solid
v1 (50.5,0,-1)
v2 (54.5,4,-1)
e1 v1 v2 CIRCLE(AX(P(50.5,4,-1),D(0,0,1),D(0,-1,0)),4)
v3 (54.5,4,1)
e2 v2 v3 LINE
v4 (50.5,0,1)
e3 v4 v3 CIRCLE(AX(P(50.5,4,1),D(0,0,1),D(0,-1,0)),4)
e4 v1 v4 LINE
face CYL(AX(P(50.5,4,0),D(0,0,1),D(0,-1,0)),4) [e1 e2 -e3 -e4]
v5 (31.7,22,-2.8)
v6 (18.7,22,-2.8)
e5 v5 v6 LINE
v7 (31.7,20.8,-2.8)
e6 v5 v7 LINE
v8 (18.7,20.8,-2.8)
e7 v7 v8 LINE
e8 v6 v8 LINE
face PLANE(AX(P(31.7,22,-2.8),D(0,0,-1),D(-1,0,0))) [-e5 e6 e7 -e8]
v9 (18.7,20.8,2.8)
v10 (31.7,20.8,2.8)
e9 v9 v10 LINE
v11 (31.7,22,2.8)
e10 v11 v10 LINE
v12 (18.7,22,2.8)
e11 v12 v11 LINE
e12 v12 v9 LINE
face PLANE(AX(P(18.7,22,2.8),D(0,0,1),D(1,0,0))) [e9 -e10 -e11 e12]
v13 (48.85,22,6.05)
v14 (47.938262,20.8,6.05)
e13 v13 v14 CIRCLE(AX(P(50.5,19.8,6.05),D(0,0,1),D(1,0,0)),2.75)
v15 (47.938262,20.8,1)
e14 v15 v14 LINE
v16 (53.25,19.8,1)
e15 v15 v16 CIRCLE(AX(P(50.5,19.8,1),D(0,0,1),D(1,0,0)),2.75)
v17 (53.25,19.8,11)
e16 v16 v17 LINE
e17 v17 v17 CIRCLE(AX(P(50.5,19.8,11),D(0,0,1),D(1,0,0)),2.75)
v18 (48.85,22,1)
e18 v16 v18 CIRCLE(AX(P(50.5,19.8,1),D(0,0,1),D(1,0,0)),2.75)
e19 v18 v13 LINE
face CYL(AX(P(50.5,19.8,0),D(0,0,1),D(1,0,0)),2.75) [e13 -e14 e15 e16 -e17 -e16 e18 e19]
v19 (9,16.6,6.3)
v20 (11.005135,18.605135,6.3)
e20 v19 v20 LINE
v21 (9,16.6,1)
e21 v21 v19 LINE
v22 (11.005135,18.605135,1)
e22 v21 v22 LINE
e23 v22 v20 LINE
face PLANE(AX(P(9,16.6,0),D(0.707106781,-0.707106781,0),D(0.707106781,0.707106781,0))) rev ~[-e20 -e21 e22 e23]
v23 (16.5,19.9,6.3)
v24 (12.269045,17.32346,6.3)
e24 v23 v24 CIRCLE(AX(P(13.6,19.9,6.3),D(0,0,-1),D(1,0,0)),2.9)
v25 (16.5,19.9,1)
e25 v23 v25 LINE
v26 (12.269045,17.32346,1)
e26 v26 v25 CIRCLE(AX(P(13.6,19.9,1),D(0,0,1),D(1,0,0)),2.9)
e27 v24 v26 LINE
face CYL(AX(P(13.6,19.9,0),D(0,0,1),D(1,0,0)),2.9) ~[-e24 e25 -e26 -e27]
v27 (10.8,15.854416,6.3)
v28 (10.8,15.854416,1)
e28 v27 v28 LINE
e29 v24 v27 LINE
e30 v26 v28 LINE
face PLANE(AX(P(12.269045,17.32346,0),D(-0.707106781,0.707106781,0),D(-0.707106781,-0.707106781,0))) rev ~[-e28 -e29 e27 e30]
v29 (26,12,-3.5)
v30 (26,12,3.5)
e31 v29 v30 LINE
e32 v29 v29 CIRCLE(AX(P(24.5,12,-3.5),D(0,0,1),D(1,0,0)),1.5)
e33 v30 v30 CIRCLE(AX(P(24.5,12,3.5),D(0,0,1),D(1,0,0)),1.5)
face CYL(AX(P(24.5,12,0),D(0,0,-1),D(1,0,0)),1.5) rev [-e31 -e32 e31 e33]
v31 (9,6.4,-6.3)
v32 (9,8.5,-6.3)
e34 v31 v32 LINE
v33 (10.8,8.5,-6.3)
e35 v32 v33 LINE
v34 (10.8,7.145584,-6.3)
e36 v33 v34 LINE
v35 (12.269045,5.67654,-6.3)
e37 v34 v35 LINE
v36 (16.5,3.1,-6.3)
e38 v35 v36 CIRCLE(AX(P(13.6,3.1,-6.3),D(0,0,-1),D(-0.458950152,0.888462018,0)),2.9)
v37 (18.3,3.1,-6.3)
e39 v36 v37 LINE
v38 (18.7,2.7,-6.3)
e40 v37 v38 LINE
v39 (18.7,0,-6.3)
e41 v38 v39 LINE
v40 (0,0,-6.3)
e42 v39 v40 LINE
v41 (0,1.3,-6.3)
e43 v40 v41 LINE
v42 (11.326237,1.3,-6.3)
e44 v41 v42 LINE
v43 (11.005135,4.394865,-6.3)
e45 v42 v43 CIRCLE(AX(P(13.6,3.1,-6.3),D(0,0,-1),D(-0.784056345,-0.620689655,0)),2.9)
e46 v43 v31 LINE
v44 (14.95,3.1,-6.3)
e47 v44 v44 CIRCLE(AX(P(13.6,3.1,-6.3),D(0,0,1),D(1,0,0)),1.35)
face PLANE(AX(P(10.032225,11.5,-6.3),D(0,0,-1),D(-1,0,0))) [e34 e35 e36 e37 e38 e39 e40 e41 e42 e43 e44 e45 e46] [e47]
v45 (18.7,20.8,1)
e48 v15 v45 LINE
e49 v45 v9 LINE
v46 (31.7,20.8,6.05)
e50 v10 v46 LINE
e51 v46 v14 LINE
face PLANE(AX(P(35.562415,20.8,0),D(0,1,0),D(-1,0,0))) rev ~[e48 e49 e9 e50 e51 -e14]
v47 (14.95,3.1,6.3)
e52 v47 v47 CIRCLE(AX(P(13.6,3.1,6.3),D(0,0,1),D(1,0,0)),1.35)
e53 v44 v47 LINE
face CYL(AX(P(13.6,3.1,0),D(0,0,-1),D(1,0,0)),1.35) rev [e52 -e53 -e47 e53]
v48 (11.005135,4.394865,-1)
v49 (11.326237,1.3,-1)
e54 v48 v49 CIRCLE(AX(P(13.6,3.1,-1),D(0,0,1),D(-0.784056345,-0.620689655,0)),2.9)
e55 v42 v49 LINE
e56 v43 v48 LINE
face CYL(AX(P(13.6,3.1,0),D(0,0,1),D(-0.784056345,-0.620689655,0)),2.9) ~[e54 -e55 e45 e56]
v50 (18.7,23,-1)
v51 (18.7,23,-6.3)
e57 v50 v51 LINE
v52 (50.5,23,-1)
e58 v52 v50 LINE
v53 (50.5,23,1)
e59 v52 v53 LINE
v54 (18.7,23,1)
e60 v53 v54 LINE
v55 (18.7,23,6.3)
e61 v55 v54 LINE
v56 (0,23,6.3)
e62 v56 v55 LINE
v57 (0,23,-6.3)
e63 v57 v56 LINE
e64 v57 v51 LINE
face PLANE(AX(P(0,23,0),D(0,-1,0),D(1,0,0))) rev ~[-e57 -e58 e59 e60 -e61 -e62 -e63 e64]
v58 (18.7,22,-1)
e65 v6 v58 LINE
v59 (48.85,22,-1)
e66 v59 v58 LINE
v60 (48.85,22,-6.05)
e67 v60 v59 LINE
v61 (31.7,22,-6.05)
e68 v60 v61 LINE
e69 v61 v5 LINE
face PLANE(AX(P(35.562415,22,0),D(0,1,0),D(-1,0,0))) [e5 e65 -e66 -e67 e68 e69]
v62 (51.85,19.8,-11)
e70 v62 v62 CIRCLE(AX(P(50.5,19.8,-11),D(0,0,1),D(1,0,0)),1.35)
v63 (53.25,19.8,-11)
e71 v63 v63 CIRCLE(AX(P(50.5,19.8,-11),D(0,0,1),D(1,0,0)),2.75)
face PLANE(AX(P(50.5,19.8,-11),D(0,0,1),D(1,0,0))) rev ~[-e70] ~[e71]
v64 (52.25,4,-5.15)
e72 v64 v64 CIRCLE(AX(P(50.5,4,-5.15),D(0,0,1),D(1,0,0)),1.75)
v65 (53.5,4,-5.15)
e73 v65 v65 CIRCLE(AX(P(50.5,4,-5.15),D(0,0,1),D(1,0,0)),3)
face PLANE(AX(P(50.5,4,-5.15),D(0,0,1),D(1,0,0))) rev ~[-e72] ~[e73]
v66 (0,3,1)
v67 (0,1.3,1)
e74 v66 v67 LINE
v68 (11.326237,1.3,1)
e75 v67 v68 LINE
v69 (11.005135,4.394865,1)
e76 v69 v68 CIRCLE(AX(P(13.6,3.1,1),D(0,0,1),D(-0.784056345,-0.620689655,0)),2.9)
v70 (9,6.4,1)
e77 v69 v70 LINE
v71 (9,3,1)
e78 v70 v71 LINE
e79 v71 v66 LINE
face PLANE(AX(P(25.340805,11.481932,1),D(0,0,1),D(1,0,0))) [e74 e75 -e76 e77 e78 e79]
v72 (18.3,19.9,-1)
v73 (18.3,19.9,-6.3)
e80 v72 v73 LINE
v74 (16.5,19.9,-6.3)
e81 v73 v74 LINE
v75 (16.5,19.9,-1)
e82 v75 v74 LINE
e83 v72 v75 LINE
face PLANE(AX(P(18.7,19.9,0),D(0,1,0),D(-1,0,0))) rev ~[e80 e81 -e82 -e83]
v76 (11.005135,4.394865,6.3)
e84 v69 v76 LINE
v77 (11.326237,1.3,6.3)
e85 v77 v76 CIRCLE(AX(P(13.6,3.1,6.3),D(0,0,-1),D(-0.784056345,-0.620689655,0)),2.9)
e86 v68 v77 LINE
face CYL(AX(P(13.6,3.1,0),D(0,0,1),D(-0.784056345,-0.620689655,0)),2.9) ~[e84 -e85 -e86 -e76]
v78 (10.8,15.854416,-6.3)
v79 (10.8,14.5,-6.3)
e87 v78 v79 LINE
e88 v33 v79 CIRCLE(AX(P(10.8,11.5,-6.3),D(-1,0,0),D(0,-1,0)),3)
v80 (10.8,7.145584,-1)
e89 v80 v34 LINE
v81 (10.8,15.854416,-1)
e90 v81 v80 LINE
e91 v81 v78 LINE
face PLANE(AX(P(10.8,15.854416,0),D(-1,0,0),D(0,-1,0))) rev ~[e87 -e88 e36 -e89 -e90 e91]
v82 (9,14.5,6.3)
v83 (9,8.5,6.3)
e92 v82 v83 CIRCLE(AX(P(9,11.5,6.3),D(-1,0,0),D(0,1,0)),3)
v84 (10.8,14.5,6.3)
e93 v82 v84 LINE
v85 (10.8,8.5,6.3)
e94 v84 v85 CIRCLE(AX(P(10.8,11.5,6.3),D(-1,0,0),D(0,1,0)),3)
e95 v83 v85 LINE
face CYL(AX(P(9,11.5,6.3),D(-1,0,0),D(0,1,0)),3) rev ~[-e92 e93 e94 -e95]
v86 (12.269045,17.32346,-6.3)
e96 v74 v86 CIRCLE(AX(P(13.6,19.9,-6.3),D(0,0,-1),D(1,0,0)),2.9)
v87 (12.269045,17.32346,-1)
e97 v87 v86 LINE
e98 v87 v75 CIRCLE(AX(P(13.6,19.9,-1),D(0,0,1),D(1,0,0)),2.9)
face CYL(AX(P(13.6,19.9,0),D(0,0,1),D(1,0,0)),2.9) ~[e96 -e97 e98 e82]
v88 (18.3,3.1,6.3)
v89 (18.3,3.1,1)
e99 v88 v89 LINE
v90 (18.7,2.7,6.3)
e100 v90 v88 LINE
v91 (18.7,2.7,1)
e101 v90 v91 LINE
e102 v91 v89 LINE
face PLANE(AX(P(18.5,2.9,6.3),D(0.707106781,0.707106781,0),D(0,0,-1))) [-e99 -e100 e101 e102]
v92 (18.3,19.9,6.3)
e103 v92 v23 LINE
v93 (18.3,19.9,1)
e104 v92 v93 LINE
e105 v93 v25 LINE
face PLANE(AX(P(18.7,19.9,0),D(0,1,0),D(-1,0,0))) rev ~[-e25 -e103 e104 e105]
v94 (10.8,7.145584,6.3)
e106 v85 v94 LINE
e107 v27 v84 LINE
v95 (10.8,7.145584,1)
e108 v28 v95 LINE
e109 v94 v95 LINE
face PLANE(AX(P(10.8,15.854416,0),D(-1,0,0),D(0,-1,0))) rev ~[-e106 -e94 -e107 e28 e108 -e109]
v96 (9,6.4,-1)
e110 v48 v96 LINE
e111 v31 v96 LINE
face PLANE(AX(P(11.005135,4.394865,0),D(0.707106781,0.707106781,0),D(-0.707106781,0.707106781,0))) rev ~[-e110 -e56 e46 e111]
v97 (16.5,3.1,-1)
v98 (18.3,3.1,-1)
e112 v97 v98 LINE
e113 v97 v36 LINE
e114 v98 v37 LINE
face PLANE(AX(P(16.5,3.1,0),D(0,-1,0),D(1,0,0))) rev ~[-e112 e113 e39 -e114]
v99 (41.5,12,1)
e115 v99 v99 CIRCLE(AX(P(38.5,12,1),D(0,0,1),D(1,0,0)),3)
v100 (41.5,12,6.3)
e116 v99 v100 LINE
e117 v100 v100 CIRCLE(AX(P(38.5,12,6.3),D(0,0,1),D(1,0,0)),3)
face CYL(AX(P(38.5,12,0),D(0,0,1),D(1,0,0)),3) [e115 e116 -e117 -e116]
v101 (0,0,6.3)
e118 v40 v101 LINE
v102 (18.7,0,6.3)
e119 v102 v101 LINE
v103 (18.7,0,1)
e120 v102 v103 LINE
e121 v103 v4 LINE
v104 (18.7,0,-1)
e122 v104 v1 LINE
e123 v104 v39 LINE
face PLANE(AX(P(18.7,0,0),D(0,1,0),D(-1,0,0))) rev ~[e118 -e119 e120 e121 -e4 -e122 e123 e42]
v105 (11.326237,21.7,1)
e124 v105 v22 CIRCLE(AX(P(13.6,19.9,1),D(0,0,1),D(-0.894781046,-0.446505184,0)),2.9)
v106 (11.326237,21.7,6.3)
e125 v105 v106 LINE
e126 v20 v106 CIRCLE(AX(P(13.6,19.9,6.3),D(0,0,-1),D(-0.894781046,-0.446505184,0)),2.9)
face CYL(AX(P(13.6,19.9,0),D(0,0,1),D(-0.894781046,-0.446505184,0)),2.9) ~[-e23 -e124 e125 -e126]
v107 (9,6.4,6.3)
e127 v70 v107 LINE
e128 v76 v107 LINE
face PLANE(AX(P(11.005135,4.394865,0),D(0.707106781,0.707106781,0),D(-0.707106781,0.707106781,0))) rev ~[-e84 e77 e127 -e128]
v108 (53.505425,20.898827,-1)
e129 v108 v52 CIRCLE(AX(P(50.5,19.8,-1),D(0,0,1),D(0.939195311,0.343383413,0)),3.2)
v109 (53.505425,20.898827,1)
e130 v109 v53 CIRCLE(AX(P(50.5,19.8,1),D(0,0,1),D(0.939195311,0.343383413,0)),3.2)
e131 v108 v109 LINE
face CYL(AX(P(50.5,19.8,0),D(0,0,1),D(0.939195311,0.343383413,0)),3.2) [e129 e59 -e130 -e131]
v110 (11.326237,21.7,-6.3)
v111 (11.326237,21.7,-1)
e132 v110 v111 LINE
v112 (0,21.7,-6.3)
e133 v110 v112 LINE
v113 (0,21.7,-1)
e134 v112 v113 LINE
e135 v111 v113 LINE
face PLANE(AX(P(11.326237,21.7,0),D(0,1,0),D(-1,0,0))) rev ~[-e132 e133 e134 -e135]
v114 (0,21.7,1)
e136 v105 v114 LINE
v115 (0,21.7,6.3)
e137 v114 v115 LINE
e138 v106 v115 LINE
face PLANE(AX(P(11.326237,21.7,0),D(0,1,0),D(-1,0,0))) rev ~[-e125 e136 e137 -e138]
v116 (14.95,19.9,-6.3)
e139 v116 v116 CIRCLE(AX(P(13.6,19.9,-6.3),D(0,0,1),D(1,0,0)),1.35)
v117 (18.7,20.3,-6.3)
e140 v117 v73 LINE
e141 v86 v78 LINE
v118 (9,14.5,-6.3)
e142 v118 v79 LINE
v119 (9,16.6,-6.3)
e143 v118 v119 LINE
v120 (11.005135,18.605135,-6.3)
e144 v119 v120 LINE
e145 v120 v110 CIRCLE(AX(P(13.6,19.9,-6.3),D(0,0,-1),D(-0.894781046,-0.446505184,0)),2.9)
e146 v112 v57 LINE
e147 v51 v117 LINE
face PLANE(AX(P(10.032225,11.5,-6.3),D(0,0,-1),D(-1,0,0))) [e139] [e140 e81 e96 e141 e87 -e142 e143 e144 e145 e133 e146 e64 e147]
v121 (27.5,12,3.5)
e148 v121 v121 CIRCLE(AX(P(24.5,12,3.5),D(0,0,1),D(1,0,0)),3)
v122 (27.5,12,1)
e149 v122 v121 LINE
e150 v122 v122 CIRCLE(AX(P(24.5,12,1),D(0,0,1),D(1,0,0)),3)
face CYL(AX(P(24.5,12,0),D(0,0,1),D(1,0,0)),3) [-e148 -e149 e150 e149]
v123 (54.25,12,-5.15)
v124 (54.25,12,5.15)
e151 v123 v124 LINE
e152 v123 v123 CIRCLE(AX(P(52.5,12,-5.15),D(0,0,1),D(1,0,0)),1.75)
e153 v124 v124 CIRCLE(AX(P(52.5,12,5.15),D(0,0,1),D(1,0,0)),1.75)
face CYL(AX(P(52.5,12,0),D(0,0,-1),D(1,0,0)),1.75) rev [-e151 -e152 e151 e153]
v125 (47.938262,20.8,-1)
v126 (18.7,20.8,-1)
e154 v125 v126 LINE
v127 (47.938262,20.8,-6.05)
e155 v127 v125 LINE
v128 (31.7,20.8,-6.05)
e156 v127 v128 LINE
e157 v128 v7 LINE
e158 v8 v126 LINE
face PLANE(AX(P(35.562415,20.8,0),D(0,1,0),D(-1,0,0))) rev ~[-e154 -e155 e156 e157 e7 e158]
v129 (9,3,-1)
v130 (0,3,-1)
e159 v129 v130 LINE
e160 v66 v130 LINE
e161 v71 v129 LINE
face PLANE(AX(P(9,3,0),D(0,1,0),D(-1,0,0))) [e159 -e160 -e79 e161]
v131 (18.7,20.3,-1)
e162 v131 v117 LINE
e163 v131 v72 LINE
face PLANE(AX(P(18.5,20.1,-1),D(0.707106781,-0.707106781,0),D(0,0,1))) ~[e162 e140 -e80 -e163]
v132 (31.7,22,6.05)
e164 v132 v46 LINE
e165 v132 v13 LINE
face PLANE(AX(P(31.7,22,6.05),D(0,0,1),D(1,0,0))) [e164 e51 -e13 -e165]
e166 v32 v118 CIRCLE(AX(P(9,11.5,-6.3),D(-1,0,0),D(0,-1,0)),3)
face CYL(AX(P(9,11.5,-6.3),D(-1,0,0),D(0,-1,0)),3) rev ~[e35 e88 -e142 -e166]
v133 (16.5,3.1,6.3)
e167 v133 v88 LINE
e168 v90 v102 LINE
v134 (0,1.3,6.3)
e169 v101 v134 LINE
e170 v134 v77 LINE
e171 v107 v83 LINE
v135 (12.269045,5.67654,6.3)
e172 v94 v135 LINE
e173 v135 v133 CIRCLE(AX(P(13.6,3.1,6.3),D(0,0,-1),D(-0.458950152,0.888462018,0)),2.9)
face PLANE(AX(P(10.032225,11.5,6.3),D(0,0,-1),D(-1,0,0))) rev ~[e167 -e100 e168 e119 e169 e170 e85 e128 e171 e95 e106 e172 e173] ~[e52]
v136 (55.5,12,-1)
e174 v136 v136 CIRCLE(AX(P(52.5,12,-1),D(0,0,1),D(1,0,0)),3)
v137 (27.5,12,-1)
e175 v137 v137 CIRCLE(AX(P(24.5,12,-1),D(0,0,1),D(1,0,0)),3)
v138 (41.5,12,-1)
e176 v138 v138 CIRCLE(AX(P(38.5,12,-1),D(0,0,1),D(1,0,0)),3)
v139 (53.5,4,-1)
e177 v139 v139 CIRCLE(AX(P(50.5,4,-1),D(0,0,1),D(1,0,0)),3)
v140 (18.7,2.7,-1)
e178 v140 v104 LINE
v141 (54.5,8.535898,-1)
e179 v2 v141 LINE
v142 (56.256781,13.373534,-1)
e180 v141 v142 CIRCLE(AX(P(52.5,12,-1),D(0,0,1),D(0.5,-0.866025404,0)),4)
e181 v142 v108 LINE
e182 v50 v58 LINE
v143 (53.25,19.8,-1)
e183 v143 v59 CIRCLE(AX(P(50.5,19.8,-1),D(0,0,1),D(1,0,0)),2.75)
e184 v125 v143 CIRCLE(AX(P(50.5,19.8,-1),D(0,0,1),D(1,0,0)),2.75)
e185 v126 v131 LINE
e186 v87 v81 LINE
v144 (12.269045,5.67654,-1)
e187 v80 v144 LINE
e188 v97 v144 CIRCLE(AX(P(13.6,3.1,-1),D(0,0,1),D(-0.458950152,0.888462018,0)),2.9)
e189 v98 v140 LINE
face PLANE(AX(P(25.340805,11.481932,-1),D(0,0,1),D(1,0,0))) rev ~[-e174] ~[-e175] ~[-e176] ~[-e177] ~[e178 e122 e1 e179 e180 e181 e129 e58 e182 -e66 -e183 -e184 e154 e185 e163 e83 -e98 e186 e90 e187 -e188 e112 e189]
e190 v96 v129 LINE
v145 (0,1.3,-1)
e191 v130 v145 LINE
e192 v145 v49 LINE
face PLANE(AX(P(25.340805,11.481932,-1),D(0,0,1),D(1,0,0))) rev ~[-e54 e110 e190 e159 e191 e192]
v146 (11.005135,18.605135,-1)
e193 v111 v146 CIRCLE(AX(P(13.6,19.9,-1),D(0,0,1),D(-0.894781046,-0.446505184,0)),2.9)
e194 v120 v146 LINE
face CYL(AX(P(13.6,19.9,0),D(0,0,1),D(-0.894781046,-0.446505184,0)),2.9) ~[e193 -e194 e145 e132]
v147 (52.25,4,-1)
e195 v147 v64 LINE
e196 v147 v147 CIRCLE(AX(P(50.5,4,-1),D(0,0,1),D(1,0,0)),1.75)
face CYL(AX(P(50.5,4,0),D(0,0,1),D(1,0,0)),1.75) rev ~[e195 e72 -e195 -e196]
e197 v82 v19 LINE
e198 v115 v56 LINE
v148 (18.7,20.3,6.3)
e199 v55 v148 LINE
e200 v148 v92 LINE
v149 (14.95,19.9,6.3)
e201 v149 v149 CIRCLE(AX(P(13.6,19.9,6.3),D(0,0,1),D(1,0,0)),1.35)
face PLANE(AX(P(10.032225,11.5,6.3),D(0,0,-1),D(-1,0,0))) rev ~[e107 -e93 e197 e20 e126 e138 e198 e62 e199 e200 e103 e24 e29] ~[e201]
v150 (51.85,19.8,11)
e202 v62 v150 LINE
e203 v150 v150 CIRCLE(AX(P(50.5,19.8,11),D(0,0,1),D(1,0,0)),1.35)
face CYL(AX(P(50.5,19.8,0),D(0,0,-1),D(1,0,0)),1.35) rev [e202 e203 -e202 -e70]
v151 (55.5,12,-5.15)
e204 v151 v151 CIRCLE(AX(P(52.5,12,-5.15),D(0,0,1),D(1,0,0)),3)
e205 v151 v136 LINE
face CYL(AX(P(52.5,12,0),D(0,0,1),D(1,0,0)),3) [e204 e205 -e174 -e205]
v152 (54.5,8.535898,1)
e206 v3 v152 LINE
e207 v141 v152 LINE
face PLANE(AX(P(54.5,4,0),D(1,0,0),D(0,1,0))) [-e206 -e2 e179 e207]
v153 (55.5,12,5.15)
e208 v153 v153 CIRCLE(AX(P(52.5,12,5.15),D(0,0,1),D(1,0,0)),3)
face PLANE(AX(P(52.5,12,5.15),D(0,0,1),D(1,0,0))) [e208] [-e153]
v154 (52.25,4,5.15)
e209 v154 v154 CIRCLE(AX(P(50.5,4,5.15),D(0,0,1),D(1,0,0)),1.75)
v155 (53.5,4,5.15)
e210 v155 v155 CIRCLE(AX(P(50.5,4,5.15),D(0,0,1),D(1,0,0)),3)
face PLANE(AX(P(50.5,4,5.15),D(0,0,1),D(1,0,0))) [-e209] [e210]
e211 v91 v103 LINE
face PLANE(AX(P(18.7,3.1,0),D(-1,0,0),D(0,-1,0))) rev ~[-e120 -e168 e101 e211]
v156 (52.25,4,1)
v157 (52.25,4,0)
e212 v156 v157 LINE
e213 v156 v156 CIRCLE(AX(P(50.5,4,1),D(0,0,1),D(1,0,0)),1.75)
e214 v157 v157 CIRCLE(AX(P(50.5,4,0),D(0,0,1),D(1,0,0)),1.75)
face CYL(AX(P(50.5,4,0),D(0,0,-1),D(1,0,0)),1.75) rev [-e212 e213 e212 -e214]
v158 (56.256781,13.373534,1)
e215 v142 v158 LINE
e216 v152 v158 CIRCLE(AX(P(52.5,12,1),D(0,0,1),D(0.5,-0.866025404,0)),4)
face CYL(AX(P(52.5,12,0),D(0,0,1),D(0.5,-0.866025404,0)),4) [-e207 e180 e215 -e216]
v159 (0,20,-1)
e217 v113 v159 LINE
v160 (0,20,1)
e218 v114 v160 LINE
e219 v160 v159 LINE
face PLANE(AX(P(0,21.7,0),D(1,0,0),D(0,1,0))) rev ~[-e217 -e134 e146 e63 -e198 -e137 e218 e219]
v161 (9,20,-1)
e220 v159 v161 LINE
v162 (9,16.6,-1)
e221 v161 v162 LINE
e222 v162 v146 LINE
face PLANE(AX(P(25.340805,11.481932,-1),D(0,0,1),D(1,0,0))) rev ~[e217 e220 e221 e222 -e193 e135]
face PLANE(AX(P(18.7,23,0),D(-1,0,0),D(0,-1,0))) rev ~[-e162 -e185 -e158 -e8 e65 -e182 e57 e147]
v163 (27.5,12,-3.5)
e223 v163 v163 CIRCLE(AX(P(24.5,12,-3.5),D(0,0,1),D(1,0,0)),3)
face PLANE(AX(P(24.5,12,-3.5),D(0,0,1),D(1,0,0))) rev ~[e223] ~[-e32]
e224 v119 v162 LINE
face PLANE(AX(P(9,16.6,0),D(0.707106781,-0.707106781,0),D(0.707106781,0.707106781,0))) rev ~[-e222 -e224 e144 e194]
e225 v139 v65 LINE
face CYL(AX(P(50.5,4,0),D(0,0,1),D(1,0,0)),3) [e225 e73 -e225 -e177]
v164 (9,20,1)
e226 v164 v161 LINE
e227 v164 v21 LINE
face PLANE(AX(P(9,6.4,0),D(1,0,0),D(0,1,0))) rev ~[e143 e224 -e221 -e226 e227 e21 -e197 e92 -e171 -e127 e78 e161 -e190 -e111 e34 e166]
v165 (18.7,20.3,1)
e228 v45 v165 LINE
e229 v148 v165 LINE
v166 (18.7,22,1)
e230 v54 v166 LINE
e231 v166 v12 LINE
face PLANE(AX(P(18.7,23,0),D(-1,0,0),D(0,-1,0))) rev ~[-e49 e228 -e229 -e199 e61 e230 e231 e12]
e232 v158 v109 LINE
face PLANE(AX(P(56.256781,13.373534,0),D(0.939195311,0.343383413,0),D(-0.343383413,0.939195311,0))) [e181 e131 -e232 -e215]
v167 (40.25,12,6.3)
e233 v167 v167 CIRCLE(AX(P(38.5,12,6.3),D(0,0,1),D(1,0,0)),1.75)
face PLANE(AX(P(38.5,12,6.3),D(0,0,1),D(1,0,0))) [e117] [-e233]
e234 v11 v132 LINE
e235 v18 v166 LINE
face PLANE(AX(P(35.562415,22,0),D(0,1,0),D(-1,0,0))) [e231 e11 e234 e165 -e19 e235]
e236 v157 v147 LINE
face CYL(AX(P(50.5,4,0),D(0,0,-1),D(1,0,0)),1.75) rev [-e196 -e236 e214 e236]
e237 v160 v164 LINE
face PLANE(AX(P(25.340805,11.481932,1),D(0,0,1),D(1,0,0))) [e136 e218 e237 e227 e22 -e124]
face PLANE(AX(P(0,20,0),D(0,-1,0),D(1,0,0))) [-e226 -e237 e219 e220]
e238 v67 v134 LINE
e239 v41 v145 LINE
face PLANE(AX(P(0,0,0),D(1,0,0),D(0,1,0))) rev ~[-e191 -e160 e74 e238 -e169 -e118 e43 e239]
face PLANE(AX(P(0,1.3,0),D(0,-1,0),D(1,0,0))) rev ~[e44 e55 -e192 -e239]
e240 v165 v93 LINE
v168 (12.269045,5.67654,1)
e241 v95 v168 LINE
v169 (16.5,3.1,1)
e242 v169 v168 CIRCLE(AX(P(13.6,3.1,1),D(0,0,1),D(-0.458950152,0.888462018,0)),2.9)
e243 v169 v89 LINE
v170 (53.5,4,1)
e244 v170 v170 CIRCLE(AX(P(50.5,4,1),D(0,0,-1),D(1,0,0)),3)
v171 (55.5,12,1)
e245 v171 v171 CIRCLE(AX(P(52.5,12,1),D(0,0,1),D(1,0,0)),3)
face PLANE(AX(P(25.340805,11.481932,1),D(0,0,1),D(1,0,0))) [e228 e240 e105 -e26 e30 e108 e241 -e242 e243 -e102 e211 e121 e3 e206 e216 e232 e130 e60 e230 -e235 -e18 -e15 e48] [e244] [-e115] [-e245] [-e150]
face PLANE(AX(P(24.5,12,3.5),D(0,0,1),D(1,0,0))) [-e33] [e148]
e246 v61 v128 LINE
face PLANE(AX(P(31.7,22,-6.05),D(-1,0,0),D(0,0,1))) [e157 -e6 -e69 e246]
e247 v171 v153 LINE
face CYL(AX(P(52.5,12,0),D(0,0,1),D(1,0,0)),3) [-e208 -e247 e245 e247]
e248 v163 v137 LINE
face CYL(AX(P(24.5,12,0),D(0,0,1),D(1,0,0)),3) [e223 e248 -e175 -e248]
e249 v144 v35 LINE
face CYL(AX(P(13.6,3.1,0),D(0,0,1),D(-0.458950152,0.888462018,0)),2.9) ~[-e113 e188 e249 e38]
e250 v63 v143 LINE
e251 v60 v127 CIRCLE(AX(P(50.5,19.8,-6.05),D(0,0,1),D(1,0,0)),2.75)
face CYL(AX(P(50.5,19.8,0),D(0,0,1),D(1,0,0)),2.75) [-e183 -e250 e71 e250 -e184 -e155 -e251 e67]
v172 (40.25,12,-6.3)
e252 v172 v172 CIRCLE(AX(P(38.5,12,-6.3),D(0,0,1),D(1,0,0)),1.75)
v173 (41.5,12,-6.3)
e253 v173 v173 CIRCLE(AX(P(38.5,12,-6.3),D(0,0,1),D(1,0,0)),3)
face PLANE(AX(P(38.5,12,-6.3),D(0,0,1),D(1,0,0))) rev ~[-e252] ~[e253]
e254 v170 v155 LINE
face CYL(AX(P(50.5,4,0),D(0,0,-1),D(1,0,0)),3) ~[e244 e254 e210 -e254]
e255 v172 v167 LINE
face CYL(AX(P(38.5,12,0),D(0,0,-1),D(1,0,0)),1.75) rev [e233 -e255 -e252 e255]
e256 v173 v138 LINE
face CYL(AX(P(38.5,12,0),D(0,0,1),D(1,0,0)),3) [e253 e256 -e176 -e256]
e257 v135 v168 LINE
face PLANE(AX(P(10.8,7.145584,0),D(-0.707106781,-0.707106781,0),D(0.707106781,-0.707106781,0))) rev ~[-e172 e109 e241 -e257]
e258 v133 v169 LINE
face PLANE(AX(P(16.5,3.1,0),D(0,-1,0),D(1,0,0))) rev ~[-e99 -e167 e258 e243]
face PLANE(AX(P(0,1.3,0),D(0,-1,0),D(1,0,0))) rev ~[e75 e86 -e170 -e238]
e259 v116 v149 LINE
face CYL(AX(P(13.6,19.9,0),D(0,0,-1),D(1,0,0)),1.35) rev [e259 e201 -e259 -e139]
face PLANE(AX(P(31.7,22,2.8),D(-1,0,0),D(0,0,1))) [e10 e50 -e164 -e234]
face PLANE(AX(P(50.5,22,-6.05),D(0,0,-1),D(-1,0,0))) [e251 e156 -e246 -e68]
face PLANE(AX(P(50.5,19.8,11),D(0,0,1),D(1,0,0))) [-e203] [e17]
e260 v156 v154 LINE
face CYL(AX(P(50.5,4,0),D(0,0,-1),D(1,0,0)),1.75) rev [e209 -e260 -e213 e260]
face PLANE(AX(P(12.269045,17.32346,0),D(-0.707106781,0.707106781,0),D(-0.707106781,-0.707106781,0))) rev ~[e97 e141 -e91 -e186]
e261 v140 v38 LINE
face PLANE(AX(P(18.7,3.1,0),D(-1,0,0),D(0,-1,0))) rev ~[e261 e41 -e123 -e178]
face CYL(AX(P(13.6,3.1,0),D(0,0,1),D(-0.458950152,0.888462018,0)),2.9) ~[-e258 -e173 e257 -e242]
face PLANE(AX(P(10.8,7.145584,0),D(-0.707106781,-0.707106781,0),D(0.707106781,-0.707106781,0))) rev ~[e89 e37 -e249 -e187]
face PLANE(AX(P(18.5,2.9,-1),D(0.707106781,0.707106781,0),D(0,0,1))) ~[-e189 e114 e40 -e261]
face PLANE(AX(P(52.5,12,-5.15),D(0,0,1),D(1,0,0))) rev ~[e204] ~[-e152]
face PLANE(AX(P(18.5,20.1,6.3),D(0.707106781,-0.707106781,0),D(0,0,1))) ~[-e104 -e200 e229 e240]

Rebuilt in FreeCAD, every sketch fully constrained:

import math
import FreeCAD as App
import Part
import Sketcher


def edges_at(feature, points):
    """Names of the edges that pass closest to the given points."""
    edges = feature.Shape.Edges
    near = lambda p: min(range(len(edges)), key=lambda i: edges[i].distToShape(Part.Vertex(*p))[0])
    return sorted({f"Edge{near(p) + 1}" for p in points})

doc = App.newDocument("Part")
params = doc.addObject("Spreadsheet::Sheet", "Params")
for row, (alias, value) in enumerate([
    ("sketch1_diameter", "3 mm"),
    ("sketch1_radius", "4 mm"),
    ("sketch1_diameter2", "2.7 mm"),
    ("sketch1_diameter3", "3.5 mm"),
    ("sketch1_radius2", "3.2 mm"),
    ("pad1_length", "2 mm"),
    ("sketch2_diameter", "6 mm"),
    ("sketch2_diameter2", "3.5 mm"),
    ("pad2_length", "10.3 mm"),
    ("sketch3_diameter", "6 mm"),
    ("sketch3_diameter2", "3.5 mm"),
    ("pad3_length", "12.6 mm"),
    ("sketch4_diameter", "6 mm"),
    ("sketch4_diameter2", "3 mm"),
    ("pad4_length", "7 mm"),
    ("sketch5_diameter", "5.5 mm"),
    ("sketch5_diameter2", "2.7 mm"),
    ("pad5_length", "22 mm"),
    ("sketch6_diameter", "2.7 mm"),
    ("sketch6_radius", "2.9 mm"),
    ("sketch6_width", "18.7 mm"),
    ("sketch6_width2", "2.2 mm"),
    ("sketch6_height", "1.3 mm"),
    ("pad6_length", "12.6 mm"),
    ("sketch7_width", "13 mm"),
    ("sketch7_width2", "18.8 mm"),
    ("sketch7_height", "5.6 mm"),
    ("sketch7_height2", "12.1 mm"),
    ("pad7_length", "1.2 mm"),
    ("sketch8_diameter", "2.7 mm"),
    ("sketch9_radius", "3 mm"),
    ("sketch10_radius", "3 mm"),
    ("chamfer_size", "0.4 mm"),
], start=1):
    params.set(f"A{row}", alias)
    params.set(f"B{row}", "=" + value)
    params.setAlias(f"B{row}", alias)

body = doc.addObject("PartDesign::Body", "Body")

sketch1 = body.newObject("Sketcher::SketchObject", "Sketch")
sketch1.AttachmentSupport = (doc.getObject("XY_Plane"), [""])
sketch1.MapMode = "FlatFace"
sketch1.addGeometry(Part.LineSegment(App.Vector(0, 0, 0), App.Vector(50.5, 0, 0)), False)
sketch1.addGeometry(Part.ArcOfCircle(Part.Circle(App.Vector(50.5, 4, 0), App.Vector(0, 0, 1), 4), math.radians(-90), math.radians(0)), False)
sketch1.addGeometry(Part.LineSegment(App.Vector(54.5, 4, 0), App.Vector(54.5, 8.5, 0)), False)
sketch1.addGeometry(Part.ArcOfCircle(Part.Circle(App.Vector(52.5, 12, 0), App.Vector(0, 0, 1), 4), math.radians(-60), math.radians(20)), False)
sketch1.addGeometry(Part.LineSegment(App.Vector(56.3, 13.4, 0), App.Vector(53.5, 20.9, 0)), False)
sketch1.addGeometry(Part.ArcOfCircle(Part.Circle(App.Vector(50.5, 19.8, 0), App.Vector(0, 0, 1), 3.2), math.radians(20), math.radians(90)), False)
sketch1.addGeometry(Part.LineSegment(App.Vector(50.5, 23, 0), App.Vector(0, 23, 0)), False)
sketch1.addGeometry(Part.LineSegment(App.Vector(0, 23, 0), App.Vector(0, 20, 0)), False)
sketch1.addGeometry(Part.LineSegment(App.Vector(0, 20, 0), App.Vector(9, 20, 0)), False)
sketch1.addGeometry(Part.LineSegment(App.Vector(9, 20, 0), App.Vector(9, 3, 0)), False)
sketch1.addGeometry(Part.LineSegment(App.Vector(9, 3, 0), App.Vector(0, 3, 0)), False)
sketch1.addGeometry(Part.LineSegment(App.Vector(0, 3, 0), App.Vector(0, 0, 0)), False)
sketch1.addGeometry(Part.Circle(App.Vector(13.6, 3.1, 0), App.Vector(0, 0, 1), 1.4), False)
sketch1.addGeometry(Part.Circle(App.Vector(50.5, 4, 0), App.Vector(0, 0, 1), 1.8), False)
sketch1.addGeometry(Part.Circle(App.Vector(24.5, 12, 0), App.Vector(0, 0, 1), 1.5), False)
sketch1.addGeometry(Part.Circle(App.Vector(13.6, 19.9, 0), App.Vector(0, 0, 1), 1.4), False)
sketch1.addGeometry(Part.Circle(App.Vector(38.5, 12, 0), App.Vector(0, 0, 1), 1.8), False)
sketch1.addGeometry(Part.Circle(App.Vector(52.5, 12, 0), App.Vector(0, 0, 1), 1.8), False)
sketch1.addGeometry(Part.Circle(App.Vector(50.5, 19.8, 0), App.Vector(0, 0, 1), 1.4), False)
sketch1.addConstraint(Sketcher.Constraint("Tangent", 0, 2, 1, 1))
sketch1.addConstraint(Sketcher.Constraint("Tangent", 1, 2, 2, 1))
sketch1.addConstraint(Sketcher.Constraint("Coincident", 2, 2, 3, 1))
sketch1.addConstraint(Sketcher.Constraint("Tangent", 3, 2, 4, 1))
sketch1.addConstraint(Sketcher.Constraint("Tangent", 4, 2, 5, 1))
sketch1.addConstraint(Sketcher.Constraint("Tangent", 5, 2, 6, 1))
sketch1.addConstraint(Sketcher.Constraint("Coincident", 6, 2, 7, 1))
sketch1.addConstraint(Sketcher.Constraint("Coincident", 7, 2, 8, 1))
sketch1.addConstraint(Sketcher.Constraint("Coincident", 8, 2, 9, 1))
sketch1.addConstraint(Sketcher.Constraint("Coincident", 9, 2, 10, 1))
sketch1.addConstraint(Sketcher.Constraint("Coincident", 10, 2, 11, 1))
sketch1.addConstraint(Sketcher.Constraint("Coincident", 11, 2, 0, 1))
sketch1.addConstraint(Sketcher.Constraint("Horizontal", 0))
sketch1.addConstraint(Sketcher.Constraint("Vertical", 2))
sketch1.addConstraint(Sketcher.Constraint("Horizontal", 6))
sketch1.addConstraint(Sketcher.Constraint("Vertical", 7))
sketch1.addConstraint(Sketcher.Constraint("Horizontal", 8))
sketch1.addConstraint(Sketcher.Constraint("Vertical", 9))
sketch1.addConstraint(Sketcher.Constraint("Horizontal", 10))
sketch1.addConstraint(Sketcher.Constraint("Vertical", 11))
sketch1.addConstraint(Sketcher.Constraint("Coincident", 11, 2, -1, 1))
sketch1.addConstraint(Sketcher.Constraint("Coincident", 13, 3, 1, 3))
sketch1.addConstraint(Sketcher.Constraint("Coincident", 17, 3, 3, 3))
sketch1.addConstraint(Sketcher.Constraint("Coincident", 18, 3, 5, 3))
sketch1.addConstraint(Sketcher.Constraint("Equal", 1, 3))
sketch1.addConstraint(Sketcher.Constraint("Equal", 12, 15))
sketch1.addConstraint(Sketcher.Constraint("Equal", 13, 16))
sketch1.addConstraint(Sketcher.Constraint("Equal", 16, 17))
sketch1.addConstraint(Sketcher.Constraint("Equal", 15, 18))
sketch1.addConstraint(Sketcher.Constraint("PointOnObject", 6, 2, -2))
sketch1.addConstraint(Sketcher.Constraint("Horizontal", 3, 3, 14, 3))
sketch1.addConstraint(Sketcher.Constraint("Horizontal", 14, 3, 16, 3))
sketch1.addConstraint(Sketcher.Constraint("Vertical", 1, 3, 5, 3))
sketch1.addConstraint(Sketcher.Constraint("Vertical", 12, 3, 15, 3))
sketch1.addConstraint(Sketcher.Constraint("Equal", 7, 11))
sketch1.addConstraint(Sketcher.Constraint("Diameter", 14, 3.0))
sketch1.addConstraint(Sketcher.Constraint("Radius", 1, 4.0))
sketch1.addConstraint(Sketcher.Constraint("Diameter", 12, 2.7))
sketch1.addConstraint(Sketcher.Constraint("Diameter", 13, 3.5))
sketch1.addConstraint(Sketcher.Constraint("Radius", 5, 3.2))
sketch1.addConstraint(Sketcher.Constraint("DistanceX", 8, 1, 8, 2, 9.0))
sketch1.addConstraint(Sketcher.Constraint("DistanceY", 7, 2, 7, 1, 3.0))
sketch1.addConstraint(Sketcher.Constraint("DistanceY", 9, 2, 9, 1, 17.0))
sketch1.addConstraint(Sketcher.Constraint("DistanceX", 0, 1, 0, 2, 50.5))
sketch1.addConstraint(Sketcher.Constraint("DistanceY", -1, 1, 3, 3, 12.0))
sketch1.addConstraint(Sketcher.Constraint("DistanceX", 1, 3, 3, 3, 2.0))
sketch1.addConstraint(Sketcher.Constraint("DistanceX", 14, 3, 5, 3, 26.0))
sketch1.addConstraint(Sketcher.Constraint("DistanceX", 16, 3, 3, 3, 14.0))
sketch1.addConstraint(Sketcher.Constraint("DistanceX", -1, 1, 12, 3, 13.6))
sketch1.addConstraint(Sketcher.Constraint("DistanceY", -1, 1, 12, 3, 3.1))
sketch1.addConstraint(Sketcher.Constraint("DistanceY", -1, 1, 15, 3, 19.9))
sketch1.setExpression("Constraints[35]", "Params.sketch1_diameter")
sketch1.setExpression("Constraints[36]", "Params.sketch1_radius")
sketch1.setExpression("Constraints[37]", "Params.sketch1_diameter2")
sketch1.setExpression("Constraints[38]", "Params.sketch1_diameter3")
sketch1.setExpression("Constraints[39]", "Params.sketch1_radius2")
pad1 = body.newObject("PartDesign::Pad", "Pad")
pad1.Profile = sketch1
pad1.setExpression("Length", "Params.pad1_length")
pad1.Midplane = True

sketch2 = body.newObject("Sketcher::SketchObject", "Sketch001")
sketch2.AttachmentSupport = (doc.getObject("XY_Plane"), [""])
sketch2.MapMode = "FlatFace"
sketch2.addGeometry(Part.Circle(App.Vector(50.5, 4, 0), App.Vector(0, 0, 1), 3), False)
sketch2.addGeometry(Part.Circle(App.Vector(50.5, 4, 0), App.Vector(0, 0, 1), 1.8), False)
sketch2.addGeometry(Part.Circle(App.Vector(52.5, 12, 0), App.Vector(0, 0, 1), 3), False)
sketch2.addGeometry(Part.Circle(App.Vector(52.5, 12, 0), App.Vector(0, 0, 1), 1.8), False)
sketch2.addConstraint(Sketcher.Constraint("Coincident", 1, 3, 0, 3))
sketch2.addConstraint(Sketcher.Constraint("Coincident", 3, 3, 2, 3))
sketch2.addConstraint(Sketcher.Constraint("Equal", 0, 2))
sketch2.addConstraint(Sketcher.Constraint("Equal", 1, 3))
sketch2.addConstraint(Sketcher.Constraint("Diameter", 0, 6.0))
sketch2.addConstraint(Sketcher.Constraint("Diameter", 1, 3.5))
sketch2.addConstraint(Sketcher.Constraint("DistanceY", -1, 1, 0, 3, 4.0))
sketch2.addConstraint(Sketcher.Constraint("DistanceY", -1, 1, 2, 3, 12.0))
sketch2.addConstraint(Sketcher.Constraint("DistanceX", 0, 3, 2, 3, 2.0))
sketch2.addConstraint(Sketcher.Constraint("DistanceX", -1, 1, 0, 3, 50.5))
sketch2.setExpression("Constraints[4]", "Params.sketch2_diameter")
sketch2.setExpression("Constraints[5]", "Params.sketch2_diameter2")
pad2 = body.newObject("PartDesign::Pad", "Pad001")
pad2.Profile = sketch2
pad2.setExpression("Length", "Params.pad2_length")
pad2.Midplane = True

sketch3 = body.newObject("Sketcher::SketchObject", "Sketch002")
sketch3.AttachmentSupport = (doc.getObject("XY_Plane"), [""])
sketch3.MapMode = "FlatFace"
sketch3.addGeometry(Part.Circle(App.Vector(38.5, 12, 0), App.Vector(0, 0, 1), 3), False)
sketch3.addGeometry(Part.Circle(App.Vector(38.5, 12, 0), App.Vector(0, 0, 1), 1.8), False)
sketch3.addConstraint(Sketcher.Constraint("Coincident", 1, 3, 0, 3))
sketch3.addConstraint(Sketcher.Constraint("Diameter", 0, 6.0))
sketch3.addConstraint(Sketcher.Constraint("Diameter", 1, 3.5))
sketch3.addConstraint(Sketcher.Constraint("DistanceY", -1, 1, 0, 3, 12.0))
sketch3.addConstraint(Sketcher.Constraint("DistanceX", -1, 1, 0, 3, 38.5))
sketch3.setExpression("Constraints[1]", "Params.sketch3_diameter")
sketch3.setExpression("Constraints[2]", "Params.sketch3_diameter2")
pad3 = body.newObject("PartDesign::Pad", "Pad002")
pad3.Profile = sketch3
pad3.setExpression("Length", "Params.pad3_length")
pad3.Midplane = True

sketch4 = body.newObject("Sketcher::SketchObject", "Sketch003")
sketch4.AttachmentSupport = (doc.getObject("XY_Plane"), [""])
sketch4.MapMode = "FlatFace"
sketch4.addGeometry(Part.Circle(App.Vector(24.5, 12, 0), App.Vector(0, 0, 1), 3), False)
sketch4.addGeometry(Part.Circle(App.Vector(24.5, 12, 0), App.Vector(0, 0, 1), 1.5), False)
sketch4.addConstraint(Sketcher.Constraint("Coincident", 1, 3, 0, 3))
sketch4.addConstraint(Sketcher.Constraint("Diameter", 0, 6.0))
sketch4.addConstraint(Sketcher.Constraint("Diameter", 1, 3.0))
sketch4.addConstraint(Sketcher.Constraint("DistanceY", -1, 1, 0, 3, 12.0))
sketch4.addConstraint(Sketcher.Constraint("DistanceX", -1, 1, 0, 3, 24.5))
sketch4.setExpression("Constraints[1]", "Params.sketch4_diameter")
sketch4.setExpression("Constraints[2]", "Params.sketch4_diameter2")
pad4 = body.newObject("PartDesign::Pad", "Pad003")
pad4.Profile = sketch4
pad4.setExpression("Length", "Params.pad4_length")
pad4.Midplane = True

sketch5 = body.newObject("Sketcher::SketchObject", "Sketch004")
sketch5.AttachmentSupport = (doc.getObject("XY_Plane"), [""])
sketch5.MapMode = "FlatFace"
sketch5.addGeometry(Part.Circle(App.Vector(50.5, 19.8, 0), App.Vector(0, 0, 1), 2.8), False)
sketch5.addGeometry(Part.Circle(App.Vector(50.5, 19.8, 0), App.Vector(0, 0, 1), 1.4), False)
sketch5.addConstraint(Sketcher.Constraint("Coincident", 1, 3, 0, 3))
sketch5.addConstraint(Sketcher.Constraint("Diameter", 0, 5.5))
sketch5.addConstraint(Sketcher.Constraint("Diameter", 1, 2.7))
sketch5.addConstraint(Sketcher.Constraint("DistanceX", -1, 1, 0, 3, 50.5))
sketch5.addConstraint(Sketcher.Constraint("DistanceY", -1, 1, 0, 3, 19.8))
sketch5.setExpression("Constraints[1]", "Params.sketch5_diameter")
sketch5.setExpression("Constraints[2]", "Params.sketch5_diameter2")
pad5 = body.newObject("PartDesign::Pad", "Pad004")
pad5.Profile = sketch5
pad5.setExpression("Length", "Params.pad5_length")
pad5.Midplane = True

sketch6 = body.newObject("Sketcher::SketchObject", "Sketch005")
sketch6.AttachmentSupport = (doc.getObject("XY_Plane"), [""])
sketch6.MapMode = "FlatFace"
sketch6.addGeometry(Part.LineSegment(App.Vector(18.7, 23, 0), App.Vector(0, 23, 0)), False)
sketch6.addGeometry(Part.LineSegment(App.Vector(0, 23, 0), App.Vector(0, 21.7, 0)), False)
sketch6.addGeometry(Part.LineSegment(App.Vector(0, 21.7, 0), App.Vector(11.3, 21.7, 0)), False)
sketch6.addGeometry(Part.ArcOfCircle(Part.Circle(App.Vector(13.6, 19.9, 0), App.Vector(0, 0, 1), 2.9), math.radians(142), math.radians(207)), False)
sketch6.addGeometry(Part.LineSegment(App.Vector(11, 18.6, 0), App.Vector(9, 16.6, 0)), False)
sketch6.addGeometry(Part.LineSegment(App.Vector(9, 16.6, 0), App.Vector(9, 6.4, 0)), False)
sketch6.addGeometry(Part.LineSegment(App.Vector(9, 6.4, 0), App.Vector(11, 4.4, 0)), False)
sketch6.addGeometry(Part.ArcOfCircle(Part.Circle(App.Vector(13.6, 3.1, 0), App.Vector(0, 0, 1), 2.9), math.radians(153), math.radians(218)), False)
sketch6.addGeometry(Part.LineSegment(App.Vector(11.3, 1.3, 0), App.Vector(0, 1.3, 0)), False)
sketch6.addGeometry(Part.LineSegment(App.Vector(0, 1.3, 0), App.Vector(0, 0, 0)), False)
sketch6.addGeometry(Part.LineSegment(App.Vector(0, 0, 0), App.Vector(18.7, 0, 0)), False)
sketch6.addGeometry(Part.LineSegment(App.Vector(18.7, 0, 0), App.Vector(18.7, 3.1, 0)), False)
sketch6.addGeometry(Part.LineSegment(App.Vector(18.7, 3.1, 0), App.Vector(16.5, 3.1, 0)), False)
sketch6.addGeometry(Part.ArcOfCircle(Part.Circle(App.Vector(13.6, 3.1, 0), App.Vector(0, 0, 1), 2.9), math.radians(0), math.radians(117)), False)
sketch6.addGeometry(Part.LineSegment(App.Vector(12.3, 5.7, 0), App.Vector(10.8, 7.1, 0)), False)
sketch6.addGeometry(Part.LineSegment(App.Vector(10.8, 7.1, 0), App.Vector(10.8, 15.9, 0)), False)
sketch6.addGeometry(Part.LineSegment(App.Vector(10.8, 15.9, 0), App.Vector(12.3, 17.3, 0)), False)
sketch6.addGeometry(Part.ArcOfCircle(Part.Circle(App.Vector(13.6, 19.9, 0), App.Vector(0, 0, 1), 2.9), math.radians(-117), math.radians(0)), False)
sketch6.addGeometry(Part.LineSegment(App.Vector(16.5, 19.9, 0), App.Vector(18.7, 19.9, 0)), False)
sketch6.addGeometry(Part.LineSegment(App.Vector(18.7, 19.9, 0), App.Vector(18.7, 23, 0)), False)
sketch6.addGeometry(Part.Circle(App.Vector(13.6, 3.1, 0), App.Vector(0, 0, 1), 1.4), False)
sketch6.addGeometry(Part.Circle(App.Vector(13.6, 19.9, 0), App.Vector(0, 0, 1), 1.4), False)
sketch6.addConstraint(Sketcher.Constraint("Coincident", 0, 2, 1, 1))
sketch6.addConstraint(Sketcher.Constraint("Coincident", 1, 2, 2, 1))
sketch6.addConstraint(Sketcher.Constraint("Coincident", 2, 2, 3, 1))
sketch6.addConstraint(Sketcher.Constraint("Coincident", 3, 2, 4, 1))
sketch6.addConstraint(Sketcher.Constraint("Coincident", 4, 2, 5, 1))
sketch6.addConstraint(Sketcher.Constraint("Coincident", 5, 2, 6, 1))
sketch6.addConstraint(Sketcher.Constraint("Coincident", 6, 2, 7, 1))
sketch6.addConstraint(Sketcher.Constraint("Coincident", 7, 2, 8, 1))
sketch6.addConstraint(Sketcher.Constraint("Coincident", 8, 2, 9, 1))
sketch6.addConstraint(Sketcher.Constraint("Coincident", 9, 2, 10, 1))
sketch6.addConstraint(Sketcher.Constraint("Coincident", 10, 2, 11, 1))
sketch6.addConstraint(Sketcher.Constraint("Coincident", 11, 2, 12, 1))
sketch6.addConstraint(Sketcher.Constraint("Coincident", 12, 2, 13, 1))
sketch6.addConstraint(Sketcher.Constraint("Coincident", 13, 2, 14, 1))
sketch6.addConstraint(Sketcher.Constraint("Coincident", 14, 2, 15, 1))
sketch6.addConstraint(Sketcher.Constraint("Coincident", 15, 2, 16, 1))
sketch6.addConstraint(Sketcher.Constraint("Coincident", 16, 2, 17, 1))
sketch6.addConstraint(Sketcher.Constraint("Coincident", 17, 2, 18, 1))
sketch6.addConstraint(Sketcher.Constraint("Coincident", 18, 2, 19, 1))
sketch6.addConstraint(Sketcher.Constraint("Coincident", 19, 2, 0, 1))
sketch6.addConstraint(Sketcher.Constraint("Horizontal", 0))
sketch6.addConstraint(Sketcher.Constraint("Vertical", 1))
sketch6.addConstraint(Sketcher.Constraint("Horizontal", 2))
sketch6.addConstraint(Sketcher.Constraint("Vertical", 5))
sketch6.addConstraint(Sketcher.Constraint("Horizontal", 8))
sketch6.addConstraint(Sketcher.Constraint("Vertical", 9))
sketch6.addConstraint(Sketcher.Constraint("Horizontal", 10))
sketch6.addConstraint(Sketcher.Constraint("Vertical", 11))
sketch6.addConstraint(Sketcher.Constraint("Horizontal", 12))
sketch6.addConstraint(Sketcher.Constraint("Vertical", 15))
sketch6.addConstraint(Sketcher.Constraint("Horizontal", 18))
sketch6.addConstraint(Sketcher.Constraint("Vertical", 19))
sketch6.addConstraint(Sketcher.Constraint("Coincident", 9, 2, -1, 1))
sketch6.addConstraint(Sketcher.Constraint("Coincident", 13, 3, 7, 3))
sketch6.addConstraint(Sketcher.Constraint("Coincident", 17, 3, 3, 3))
sketch6.addConstraint(Sketcher.Constraint("Coincident", 20, 3, 7, 3))
sketch6.addConstraint(Sketcher.Constraint("Coincident", 21, 3, 3, 3))
sketch6.addConstraint(Sketcher.Constraint("Equal", 3, 7))
sketch6.addConstraint(Sketcher.Constraint("Equal", 7, 13))
sketch6.addConstraint(Sketcher.Constraint("Equal", 13, 17))
sketch6.addConstraint(Sketcher.Constraint("Equal", 20, 21))
sketch6.addConstraint(Sketcher.Constraint("PointOnObject", 0, 2, -2))
sketch6.addConstraint(Sketcher.Constraint("Perpendicular", 4, 6))
sketch6.addConstraint(Sketcher.Constraint("Parallel", 6, 14))
sketch6.addConstraint(Sketcher.Constraint("Perpendicular", 14, 16))
sketch6.addConstraint(Sketcher.Constraint("Horizontal", 20, 3, 11, 2))
sketch6.addConstraint(Sketcher.Constraint("Horizontal", 21, 3, 17, 2))
sketch6.addConstraint(Sketcher.Constraint("Vertical", 3, 3, 7, 3))
sketch6.addConstraint(Sketcher.Constraint("Vertical", 3, 2, 6, 2))
sketch6.addConstraint(Sketcher.Constraint("Vertical", 2, 2, 7, 2))
sketch6.addConstraint(Sketcher.Constraint("Vertical", 13, 2, 16, 2))
sketch6.addConstraint(Sketcher.Constraint("Vertical", 11, 2, 18, 2))
sketch6.addConstraint(Sketcher.Constraint("Equal", 1, 9))
sketch6.addConstraint(Sketcher.Constraint("Equal", 4, 6))
sketch6.addConstraint(Sketcher.Constraint("Diameter", 20, 2.7))
sketch6.addConstraint(Sketcher.Constraint("Radius", 3, 2.9))
sketch6.addConstraint(Sketcher.Constraint("DistanceX", 0, 2, 0, 1, 18.7))
sketch6.addConstraint(Sketcher.Constraint("DistanceX", 12, 2, 12, 1, 2.2))
sketch6.addConstraint(Sketcher.Constraint("DistanceY", 1, 2, 1, 1, 1.3))
sketch6.addConstraint(Sketcher.Constraint("DistanceY", 5, 2, 5, 1, 10.2))
sketch6.addConstraint(Sketcher.Constraint("DistanceY", 11, 1, 11, 2, 3.1))
sketch6.addConstraint(Sketcher.Constraint("DistanceY", -1, 1, 0, 2, 23.0))
sketch6.addConstraint(Sketcher.Constraint("DistanceX", -1, 1, 4, 2, 9.0))
sketch6.addConstraint(Sketcher.Constraint("DistanceX", -1, 1, 14, 2, 10.8))
sketch6.addConstraint(Sketcher.Constraint("DistanceY", 15, 1, 15, 2, 8.708831))
sketch6.setExpression("Constraints[54]", "Params.sketch6_diameter")
sketch6.setExpression("Constraints[55]", "Params.sketch6_radius")
sketch6.setExpression("Constraints[56]", "Params.sketch6_width")
sketch6.setExpression("Constraints[57]", "Params.sketch6_width2")
sketch6.setExpression("Constraints[58]", "Params.sketch6_height")
pad6 = body.newObject("PartDesign::Pad", "Pad005")
pad6.Profile = sketch6
pad6.setExpression("Length", "Params.pad6_length")
pad6.Midplane = True

sketch7 = body.newObject("Sketcher::SketchObject", "Sketch006")
sketch7.AttachmentSupport = (doc.getObject("XZ_Plane"), [""])
sketch7.MapMode = "FlatFace"
sketch7.AttachmentOffset = App.Placement(App.Vector(0, 0, -22), App.Rotation())
sketch7.addGeometry(Part.LineSegment(App.Vector(18.7, -2.8, 0), App.Vector(18.7, 2.8, 0)), False)
sketch7.addGeometry(Part.LineSegment(App.Vector(18.7, 2.8, 0), App.Vector(31.7, 2.8, 0)), False)
sketch7.addGeometry(Part.LineSegment(App.Vector(31.7, 2.8, 0), App.Vector(31.7, 6, 0)), False)
sketch7.addGeometry(Part.LineSegment(App.Vector(31.7, 6, 0), App.Vector(50.5, 6, 0)), False)
sketch7.addGeometry(Part.LineSegment(App.Vector(50.5, 6, 0), App.Vector(50.5, -6, 0)), False)
sketch7.addGeometry(Part.LineSegment(App.Vector(50.5, -6, 0), App.Vector(31.7, -6, 0)), False)
sketch7.addGeometry(Part.LineSegment(App.Vector(31.7, -6, 0), App.Vector(31.7, -2.8, 0)), False)
sketch7.addGeometry(Part.LineSegment(App.Vector(31.7, -2.8, 0), App.Vector(18.7, -2.8, 0)), False)
sketch7.addConstraint(Sketcher.Constraint("Coincident", 0, 2, 1, 1))
sketch7.addConstraint(Sketcher.Constraint("Coincident", 1, 2, 2, 1))
sketch7.addConstraint(Sketcher.Constraint("Coincident", 2, 2, 3, 1))
sketch7.addConstraint(Sketcher.Constraint("Coincident", 3, 2, 4, 1))
sketch7.addConstraint(Sketcher.Constraint("Coincident", 4, 2, 5, 1))
sketch7.addConstraint(Sketcher.Constraint("Coincident", 5, 2, 6, 1))
sketch7.addConstraint(Sketcher.Constraint("Coincident", 6, 2, 7, 1))
sketch7.addConstraint(Sketcher.Constraint("Coincident", 7, 2, 0, 1))
sketch7.addConstraint(Sketcher.Constraint("Vertical", 0))
sketch7.addConstraint(Sketcher.Constraint("Horizontal", 1))
sketch7.addConstraint(Sketcher.Constraint("Vertical", 2))
sketch7.addConstraint(Sketcher.Constraint("Horizontal", 3))
sketch7.addConstraint(Sketcher.Constraint("Vertical", 4))
sketch7.addConstraint(Sketcher.Constraint("Horizontal", 5))
sketch7.addConstraint(Sketcher.Constraint("Vertical", 6))
sketch7.addConstraint(Sketcher.Constraint("Horizontal", 7))
sketch7.addConstraint(Sketcher.Constraint("Symmetric", 2, 2, 5, 2, -1))
sketch7.addConstraint(Sketcher.Constraint("Equal", 2, 6))
sketch7.addConstraint(Sketcher.Constraint("DistanceX", 1, 1, 1, 2, 13.0))
sketch7.addConstraint(Sketcher.Constraint("DistanceX", 3, 1, 3, 2, 18.8))
sketch7.addConstraint(Sketcher.Constraint("DistanceY", 0, 1, 0, 2, 5.6))
sketch7.addConstraint(Sketcher.Constraint("DistanceY", 4, 2, 4, 1, 12.1))
sketch7.addConstraint(Sketcher.Constraint("DistanceX", -1, 1, 0, 2, 18.7))
sketch7.setExpression("Constraints[18]", "Params.sketch7_width")
sketch7.setExpression("Constraints[19]", "Params.sketch7_width2")
sketch7.setExpression("Constraints[20]", "Params.sketch7_height")
sketch7.setExpression("Constraints[21]", "Params.sketch7_height2")
pad7 = body.newObject("PartDesign::Pad", "Pad006")
pad7.Profile = sketch7
pad7.setExpression("Length", "Params.pad7_length")

sketch8 = body.newObject("Sketcher::SketchObject", "Sketch007")
sketch8.AttachmentSupport = (doc.getObject("XY_Plane"), [""])
sketch8.MapMode = "FlatFace"
sketch8.AttachmentOffset = App.Placement(App.Vector(0, 0, -11), App.Rotation())
sketch8.addGeometry(Part.Circle(App.Vector(50.5, 19.8, 0), App.Vector(0, 0, 1), 1.4), False)
sketch8.addConstraint(Sketcher.Constraint("Diameter", 0, 2.7))
sketch8.addConstraint(Sketcher.Constraint("DistanceX", -1, 1, 0, 3, 50.5))
sketch8.addConstraint(Sketcher.Constraint("DistanceY", -1, 1, 0, 3, 19.8))
sketch8.setExpression("Constraints[0]", "Params.sketch8_diameter")
pocket1 = body.newObject("PartDesign::Pocket", "Pocket")
pocket1.Profile = sketch8
pocket1.Type = "ThroughAll"
pocket1.Reversed = True

sketch9 = body.newObject("Sketcher::SketchObject", "Sketch008")
sketch9.AttachmentSupport = (doc.getObject("YZ_Plane"), [""])
sketch9.MapMode = "FlatFace"
sketch9.AttachmentOffset = App.Placement(App.Vector(0, 0, 9), App.Rotation())
sketch9.addGeometry(Part.LineSegment(App.Vector(14.5, -6.3, 0), App.Vector(8.5, -6.3, 0)), False)
sketch9.addGeometry(Part.ArcOfCircle(Part.Circle(App.Vector(11.5, -6.3, 0), App.Vector(0, 0, 1), 3), math.radians(0), math.radians(180)), False)
sketch9.addConstraint(Sketcher.Constraint("Coincident", 0, 1, 1, 1))
sketch9.addConstraint(Sketcher.Constraint("Coincident", 1, 2, 0, 2))
sketch9.addConstraint(Sketcher.Constraint("Horizontal", 0))
sketch9.addConstraint(Sketcher.Constraint("Horizontal", 1, 3, 0, 1))
sketch9.addConstraint(Sketcher.Constraint("Radius", 1, 3.0))
sketch9.addConstraint(Sketcher.Constraint("DistanceX", -1, 1, 1, 3, 11.5))
sketch9.addConstraint(Sketcher.Constraint("DistanceY", 1, 3, -1, 1, 6.3))
sketch9.setExpression("Constraints[4]", "Params.sketch9_radius")
pocket2 = body.newObject("PartDesign::Pocket", "Pocket001")
pocket2.Profile = sketch9
pocket2.Type = "UpToFirst"
pocket2.Reversed = True

sketch10 = body.newObject("Sketcher::SketchObject", "Sketch009")
sketch10.AttachmentSupport = (doc.getObject("YZ_Plane"), [""])
sketch10.MapMode = "FlatFace"
sketch10.AttachmentOffset = App.Placement(App.Vector(0, 0, 9), App.Rotation())
sketch10.addGeometry(Part.LineSegment(App.Vector(8.5, 6.3, 0), App.Vector(14.5, 6.3, 0)), False)
sketch10.addGeometry(Part.ArcOfCircle(Part.Circle(App.Vector(11.5, 6.3, 0), App.Vector(0, 0, 1), 3), math.radians(180), math.radians(360)), False)
sketch10.addConstraint(Sketcher.Constraint("Coincident", 0, 1, 1, 1))
sketch10.addConstraint(Sketcher.Constraint("Coincident", 1, 2, 0, 2))
sketch10.addConstraint(Sketcher.Constraint("Horizontal", 0))
sketch10.addConstraint(Sketcher.Constraint("Horizontal", 1, 3, 0, 1))
sketch10.addConstraint(Sketcher.Constraint("Radius", 1, 3.0))
sketch10.addConstraint(Sketcher.Constraint("DistanceX", -1, 1, 1, 3, 11.5))
sketch10.addConstraint(Sketcher.Constraint("DistanceY", -1, 1, 1, 3, 6.3))
sketch10.setExpression("Constraints[4]", "Params.sketch10_radius")
pocket3 = body.newObject("PartDesign::Pocket", "Pocket002")
pocket3.Profile = sketch10
pocket3.Type = "UpToFirst"
pocket3.Reversed = True
doc.recompute()

chamfer = body.newObject("PartDesign::Chamfer", "Chamfer")
chamfer.Base = (pocket3, edges_at(pocket3, [
    (18.7, 3.1, -3.65),
    (18.7, 19.9, -3.65),
    (18.7, 3.1, 3.65),
    (18.7, 19.9, 3.65),
]))
chamfer.setExpression("Size", "Params.chamfer_size")

doc.recompute()
